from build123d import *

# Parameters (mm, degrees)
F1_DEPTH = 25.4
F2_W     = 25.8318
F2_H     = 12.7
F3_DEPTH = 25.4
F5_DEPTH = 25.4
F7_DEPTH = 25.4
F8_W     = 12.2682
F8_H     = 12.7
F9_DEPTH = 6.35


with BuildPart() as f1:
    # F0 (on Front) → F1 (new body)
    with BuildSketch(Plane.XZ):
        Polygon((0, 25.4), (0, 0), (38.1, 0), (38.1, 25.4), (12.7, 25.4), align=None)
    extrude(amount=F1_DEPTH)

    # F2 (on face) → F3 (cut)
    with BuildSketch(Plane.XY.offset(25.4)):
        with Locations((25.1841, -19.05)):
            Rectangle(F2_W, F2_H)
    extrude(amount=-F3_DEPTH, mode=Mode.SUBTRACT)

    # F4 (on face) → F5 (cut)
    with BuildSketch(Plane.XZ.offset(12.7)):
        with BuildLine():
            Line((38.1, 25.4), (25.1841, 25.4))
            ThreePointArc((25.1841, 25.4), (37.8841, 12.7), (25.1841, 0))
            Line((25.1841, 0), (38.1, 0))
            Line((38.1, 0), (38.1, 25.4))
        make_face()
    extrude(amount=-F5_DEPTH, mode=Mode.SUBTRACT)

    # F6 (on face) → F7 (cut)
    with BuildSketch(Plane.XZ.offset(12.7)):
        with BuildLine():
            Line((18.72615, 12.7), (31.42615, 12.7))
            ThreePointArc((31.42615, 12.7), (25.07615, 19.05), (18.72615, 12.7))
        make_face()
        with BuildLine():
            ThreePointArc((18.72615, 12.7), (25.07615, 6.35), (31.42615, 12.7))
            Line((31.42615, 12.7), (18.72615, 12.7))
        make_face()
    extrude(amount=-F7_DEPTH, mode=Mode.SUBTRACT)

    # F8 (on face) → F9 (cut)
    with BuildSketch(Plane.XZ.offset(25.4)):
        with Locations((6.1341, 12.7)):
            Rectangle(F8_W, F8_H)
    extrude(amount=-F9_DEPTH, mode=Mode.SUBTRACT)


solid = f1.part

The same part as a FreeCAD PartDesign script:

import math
import FreeCAD as App
import Part
import Sketcher
from FreeCAD import Vector
Q = App.Units.Quantity


def add_polygon(sketch, points):
    """Adds a closed chain of lines whose ends are joined by coincident constraints."""
    first, n = sketch.GeometryCount, len(points)
    for a, b in zip(points, points[1:] + points[:1]):
        sketch.addGeometry(Part.LineSegment(App.Vector(*a, 0), App.Vector(*b, 0)), False)
    for i in range(n):
        sketch.addConstraint(Sketcher.Constraint("Coincident", first + i, 2, first + (i + 1) % n, 1))

doc = App.newDocument("Part")
body = doc.addObject("PartDesign::Body", "Body")

# Sketch on XZ plane
sketch1 = body.newObject("Sketcher::SketchObject", "Sketch")
sketch1.AttachmentSupport = (doc.getObject("XZ_Plane"), [""])
sketch1.MapMode = "FlatFace"
add_polygon(sketch1, [(0, 25.4), (0, 0), (38.1, 0), (38.1, 25.4)])  # lines 0-3
sketch1.addConstraint(Sketcher.Constraint("Vertical", 0))
sketch1.addConstraint(Sketcher.Constraint("Horizontal", 1))
sketch1.addConstraint(Sketcher.Constraint("Vertical", 2))
sketch1.addConstraint(Sketcher.Constraint("Horizontal", 3))
sketch1.addConstraint(Sketcher.Constraint("Coincident", 0, 2, -1, 1))
sketch1.addConstraint(Sketcher.Constraint("DistanceY", 0, 2, 0, 1, Q("1 in")))
sketch1.addConstraint(Sketcher.Constraint("DistanceX", 1, 1, 1, 2, Q("1.5 in")))
pad1 = body.newObject("PartDesign::Pad", "Pad")
pad1.Profile = sketch1
pad1.Length = Q("1 in")

# Sketch on XY plane
sketch2 = body.newObject("Sketcher::SketchObject", "Sketch001")
sketch2.AttachmentSupport = (doc.getObject("XY_Plane"), [""])
sketch2.MapMode = "FlatFace"
sketch2.AttachmentOffset = App.Placement(Vector(0, 0, 1 * 25.4), App.Rotation())
add_polygon(sketch2, [(12.2682, -12.7), (12.2682, -25.4), (38.1, -25.4), (38.1, -12.7)])  # lines 0-3
sketch2.addConstraint(Sketcher.Constraint("Vertical", 0))
sketch2.addConstraint(Sketcher.Constraint("Horizontal", 1))
sketch2.addConstraint(Sketcher.Constraint("Vertical", 2))
sketch2.addConstraint(Sketcher.Constraint("Horizontal", 3))
sketch2.addConstraint(Sketcher.Constraint("DistanceY", 0, 2, 0, 1, Q("0.5 in")))
sketch2.addConstraint(Sketcher.Constraint("DistanceY", 0, 2, -1, 1, Q("1 in")))
sketch2.addConstraint(Sketcher.Constraint("DistanceX", -1, 1, 1, 2, Q("1.5 in")))
sketch2.addConstraint(Sketcher.Constraint("DistanceX", 1, 1, 1, 2, Q("1.017 in")))
pocket1 = body.newObject("PartDesign::Pocket", "Pocket")
pocket1.Profile = sketch2
pocket1.Length = Q("1 in")

# Sketch on XZ plane
sketch3 = body.newObject("Sketcher::SketchObject", "Sketch002")
sketch3.AttachmentSupport = (doc.getObject("XZ_Plane"), [""])
sketch3.MapMode = "FlatFace"
sketch3.AttachmentOffset = App.Placement(Vector(0, 0, 0.5 * 25.4), App.Rotation())
sketch3.addGeometry(Part.LineSegment(Vector(38.1, 25.4, 0), Vector(25.1841, 25.4, 0)), False)
sketch3.addGeometry(Part.ArcOfCircle(Part.Circle(Vector(25.1841, 12.7, 0), Vector(0, 0, 1), 12.7), math.radians(-90), math.radians(90)), False)
sketch3.addGeometry(Part.LineSegment(Vector(25.1841, 0, 0), Vector(38.1, 0, 0)), False)
sketch3.addGeometry(Part.LineSegment(Vector(38.1, 0, 0), Vector(38.1, 25.4, 0)), False)
sketch3.addConstraint(Sketcher.Constraint("Tangent", 0, 2, 1, 2))
sketch3.addConstraint(Sketcher.Constraint("Tangent", 1, 1, 2, 1))
sketch3.addConstraint(Sketcher.Constraint("Coincident", 2, 2, 3, 1))
sketch3.addConstraint(Sketcher.Constraint("Coincident", 3, 2, 0, 1))
sketch3.addConstraint(Sketcher.Constraint("Horizontal", 0))
sketch3.addConstraint(Sketcher.Constraint("Horizontal", 2))
sketch3.addConstraint(Sketcher.Constraint("Vertical", 3))
sketch3.addConstraint(Sketcher.Constraint("PointOnObject", 1, 1, -1))
sketch3.addConstraint(Sketcher.Constraint("Radius", 1, Q("0.5 in")))
sketch3.addConstraint(Sketcher.Constraint("DistanceX", -1, 1, 2, 2, Q("1.5 in")))
sketch3.addConstraint(Sketcher.Constraint("DistanceX", 0, 2, 0, 1, Q("0.5085 in")))
pocket2 = body.newObject("PartDesign::Pocket", "Pocket001")
pocket2.Profile = sketch3
pocket2.Length = Q("1 in")

# Sketch on XZ plane
sketch4 = body.newObject("Sketcher::SketchObject", "Sketch003")
sketch4.AttachmentSupport = (doc.getObject("XZ_Plane"), [""])
sketch4.MapMode = "FlatFace"
sketch4.AttachmentOffset = App.Placement(Vector(0, 0, 0.5 * 25.4), App.Rotation())
sketch4.addGeometry(Part.Circle(Vector(25.07615, 12.7, 0), Vector(0, 0, 1), 6.35), False)
sketch4.addConstraint(Sketcher.Constraint("Diameter", 0, Q("0.5 in")))
sketch4.addConstraint(Sketcher.Constraint("DistanceY", -1, 1, 0, 3, Q("0.5 in")))
sketch4.addConstraint(Sketcher.Constraint("DistanceX", -1, 1, 0, 3, 25.07615))
pocket3 = body.newObject("PartDesign::Pocket", "Pocket002")
pocket3.Profile = sketch4
pocket3.Length = Q("1 in")

# Sketch on XZ plane
sketch5 = body.newObject("Sketcher::SketchObject", "Sketch004")
sketch5.AttachmentSupport = (doc.getObject("XZ_Plane"), [""])
sketch5.MapMode = "FlatFace"
sketch5.AttachmentOffset = App.Placement(Vector(0, 0, 1 * 25.4), App.Rotation())
add_polygon(sketch5, [(0, 19.05), (0, 6.35), (12.2682, 6.35), (12.2682, 19.05)])  # lines 0-3
sketch5.addConstraint(Sketcher.Constraint("Vertical", 0))
sketch5.addConstraint(Sketcher.Constraint("Horizontal", 1))
sketch5.addConstraint(Sketcher.Constraint("Vertical", 2))
sketch5.addConstraint(Sketcher.Constraint("Horizontal", 3))
sketch5.addConstraint(Sketcher.Constraint("PointOnObject", 0, 2, -2))
sketch5.addConstraint(Sketcher.Constraint("DistanceY", 0, 2, 0, 1, Q("0.5 in")))
sketch5.addConstraint(Sketcher.Constraint("DistanceX", 1, 1, 1, 2, Q("0.483 in")))
sketch5.addConstraint(Sketcher.Constraint("DistanceY", -1, 1, 0, 2, Q("0.25 in")))
pocket4 = body.newObject("PartDesign::Pocket", "Pocket003")
pocket4.Profile = sketch5
pocket4.Length = Q("0.25 in")

doc.recompute()
